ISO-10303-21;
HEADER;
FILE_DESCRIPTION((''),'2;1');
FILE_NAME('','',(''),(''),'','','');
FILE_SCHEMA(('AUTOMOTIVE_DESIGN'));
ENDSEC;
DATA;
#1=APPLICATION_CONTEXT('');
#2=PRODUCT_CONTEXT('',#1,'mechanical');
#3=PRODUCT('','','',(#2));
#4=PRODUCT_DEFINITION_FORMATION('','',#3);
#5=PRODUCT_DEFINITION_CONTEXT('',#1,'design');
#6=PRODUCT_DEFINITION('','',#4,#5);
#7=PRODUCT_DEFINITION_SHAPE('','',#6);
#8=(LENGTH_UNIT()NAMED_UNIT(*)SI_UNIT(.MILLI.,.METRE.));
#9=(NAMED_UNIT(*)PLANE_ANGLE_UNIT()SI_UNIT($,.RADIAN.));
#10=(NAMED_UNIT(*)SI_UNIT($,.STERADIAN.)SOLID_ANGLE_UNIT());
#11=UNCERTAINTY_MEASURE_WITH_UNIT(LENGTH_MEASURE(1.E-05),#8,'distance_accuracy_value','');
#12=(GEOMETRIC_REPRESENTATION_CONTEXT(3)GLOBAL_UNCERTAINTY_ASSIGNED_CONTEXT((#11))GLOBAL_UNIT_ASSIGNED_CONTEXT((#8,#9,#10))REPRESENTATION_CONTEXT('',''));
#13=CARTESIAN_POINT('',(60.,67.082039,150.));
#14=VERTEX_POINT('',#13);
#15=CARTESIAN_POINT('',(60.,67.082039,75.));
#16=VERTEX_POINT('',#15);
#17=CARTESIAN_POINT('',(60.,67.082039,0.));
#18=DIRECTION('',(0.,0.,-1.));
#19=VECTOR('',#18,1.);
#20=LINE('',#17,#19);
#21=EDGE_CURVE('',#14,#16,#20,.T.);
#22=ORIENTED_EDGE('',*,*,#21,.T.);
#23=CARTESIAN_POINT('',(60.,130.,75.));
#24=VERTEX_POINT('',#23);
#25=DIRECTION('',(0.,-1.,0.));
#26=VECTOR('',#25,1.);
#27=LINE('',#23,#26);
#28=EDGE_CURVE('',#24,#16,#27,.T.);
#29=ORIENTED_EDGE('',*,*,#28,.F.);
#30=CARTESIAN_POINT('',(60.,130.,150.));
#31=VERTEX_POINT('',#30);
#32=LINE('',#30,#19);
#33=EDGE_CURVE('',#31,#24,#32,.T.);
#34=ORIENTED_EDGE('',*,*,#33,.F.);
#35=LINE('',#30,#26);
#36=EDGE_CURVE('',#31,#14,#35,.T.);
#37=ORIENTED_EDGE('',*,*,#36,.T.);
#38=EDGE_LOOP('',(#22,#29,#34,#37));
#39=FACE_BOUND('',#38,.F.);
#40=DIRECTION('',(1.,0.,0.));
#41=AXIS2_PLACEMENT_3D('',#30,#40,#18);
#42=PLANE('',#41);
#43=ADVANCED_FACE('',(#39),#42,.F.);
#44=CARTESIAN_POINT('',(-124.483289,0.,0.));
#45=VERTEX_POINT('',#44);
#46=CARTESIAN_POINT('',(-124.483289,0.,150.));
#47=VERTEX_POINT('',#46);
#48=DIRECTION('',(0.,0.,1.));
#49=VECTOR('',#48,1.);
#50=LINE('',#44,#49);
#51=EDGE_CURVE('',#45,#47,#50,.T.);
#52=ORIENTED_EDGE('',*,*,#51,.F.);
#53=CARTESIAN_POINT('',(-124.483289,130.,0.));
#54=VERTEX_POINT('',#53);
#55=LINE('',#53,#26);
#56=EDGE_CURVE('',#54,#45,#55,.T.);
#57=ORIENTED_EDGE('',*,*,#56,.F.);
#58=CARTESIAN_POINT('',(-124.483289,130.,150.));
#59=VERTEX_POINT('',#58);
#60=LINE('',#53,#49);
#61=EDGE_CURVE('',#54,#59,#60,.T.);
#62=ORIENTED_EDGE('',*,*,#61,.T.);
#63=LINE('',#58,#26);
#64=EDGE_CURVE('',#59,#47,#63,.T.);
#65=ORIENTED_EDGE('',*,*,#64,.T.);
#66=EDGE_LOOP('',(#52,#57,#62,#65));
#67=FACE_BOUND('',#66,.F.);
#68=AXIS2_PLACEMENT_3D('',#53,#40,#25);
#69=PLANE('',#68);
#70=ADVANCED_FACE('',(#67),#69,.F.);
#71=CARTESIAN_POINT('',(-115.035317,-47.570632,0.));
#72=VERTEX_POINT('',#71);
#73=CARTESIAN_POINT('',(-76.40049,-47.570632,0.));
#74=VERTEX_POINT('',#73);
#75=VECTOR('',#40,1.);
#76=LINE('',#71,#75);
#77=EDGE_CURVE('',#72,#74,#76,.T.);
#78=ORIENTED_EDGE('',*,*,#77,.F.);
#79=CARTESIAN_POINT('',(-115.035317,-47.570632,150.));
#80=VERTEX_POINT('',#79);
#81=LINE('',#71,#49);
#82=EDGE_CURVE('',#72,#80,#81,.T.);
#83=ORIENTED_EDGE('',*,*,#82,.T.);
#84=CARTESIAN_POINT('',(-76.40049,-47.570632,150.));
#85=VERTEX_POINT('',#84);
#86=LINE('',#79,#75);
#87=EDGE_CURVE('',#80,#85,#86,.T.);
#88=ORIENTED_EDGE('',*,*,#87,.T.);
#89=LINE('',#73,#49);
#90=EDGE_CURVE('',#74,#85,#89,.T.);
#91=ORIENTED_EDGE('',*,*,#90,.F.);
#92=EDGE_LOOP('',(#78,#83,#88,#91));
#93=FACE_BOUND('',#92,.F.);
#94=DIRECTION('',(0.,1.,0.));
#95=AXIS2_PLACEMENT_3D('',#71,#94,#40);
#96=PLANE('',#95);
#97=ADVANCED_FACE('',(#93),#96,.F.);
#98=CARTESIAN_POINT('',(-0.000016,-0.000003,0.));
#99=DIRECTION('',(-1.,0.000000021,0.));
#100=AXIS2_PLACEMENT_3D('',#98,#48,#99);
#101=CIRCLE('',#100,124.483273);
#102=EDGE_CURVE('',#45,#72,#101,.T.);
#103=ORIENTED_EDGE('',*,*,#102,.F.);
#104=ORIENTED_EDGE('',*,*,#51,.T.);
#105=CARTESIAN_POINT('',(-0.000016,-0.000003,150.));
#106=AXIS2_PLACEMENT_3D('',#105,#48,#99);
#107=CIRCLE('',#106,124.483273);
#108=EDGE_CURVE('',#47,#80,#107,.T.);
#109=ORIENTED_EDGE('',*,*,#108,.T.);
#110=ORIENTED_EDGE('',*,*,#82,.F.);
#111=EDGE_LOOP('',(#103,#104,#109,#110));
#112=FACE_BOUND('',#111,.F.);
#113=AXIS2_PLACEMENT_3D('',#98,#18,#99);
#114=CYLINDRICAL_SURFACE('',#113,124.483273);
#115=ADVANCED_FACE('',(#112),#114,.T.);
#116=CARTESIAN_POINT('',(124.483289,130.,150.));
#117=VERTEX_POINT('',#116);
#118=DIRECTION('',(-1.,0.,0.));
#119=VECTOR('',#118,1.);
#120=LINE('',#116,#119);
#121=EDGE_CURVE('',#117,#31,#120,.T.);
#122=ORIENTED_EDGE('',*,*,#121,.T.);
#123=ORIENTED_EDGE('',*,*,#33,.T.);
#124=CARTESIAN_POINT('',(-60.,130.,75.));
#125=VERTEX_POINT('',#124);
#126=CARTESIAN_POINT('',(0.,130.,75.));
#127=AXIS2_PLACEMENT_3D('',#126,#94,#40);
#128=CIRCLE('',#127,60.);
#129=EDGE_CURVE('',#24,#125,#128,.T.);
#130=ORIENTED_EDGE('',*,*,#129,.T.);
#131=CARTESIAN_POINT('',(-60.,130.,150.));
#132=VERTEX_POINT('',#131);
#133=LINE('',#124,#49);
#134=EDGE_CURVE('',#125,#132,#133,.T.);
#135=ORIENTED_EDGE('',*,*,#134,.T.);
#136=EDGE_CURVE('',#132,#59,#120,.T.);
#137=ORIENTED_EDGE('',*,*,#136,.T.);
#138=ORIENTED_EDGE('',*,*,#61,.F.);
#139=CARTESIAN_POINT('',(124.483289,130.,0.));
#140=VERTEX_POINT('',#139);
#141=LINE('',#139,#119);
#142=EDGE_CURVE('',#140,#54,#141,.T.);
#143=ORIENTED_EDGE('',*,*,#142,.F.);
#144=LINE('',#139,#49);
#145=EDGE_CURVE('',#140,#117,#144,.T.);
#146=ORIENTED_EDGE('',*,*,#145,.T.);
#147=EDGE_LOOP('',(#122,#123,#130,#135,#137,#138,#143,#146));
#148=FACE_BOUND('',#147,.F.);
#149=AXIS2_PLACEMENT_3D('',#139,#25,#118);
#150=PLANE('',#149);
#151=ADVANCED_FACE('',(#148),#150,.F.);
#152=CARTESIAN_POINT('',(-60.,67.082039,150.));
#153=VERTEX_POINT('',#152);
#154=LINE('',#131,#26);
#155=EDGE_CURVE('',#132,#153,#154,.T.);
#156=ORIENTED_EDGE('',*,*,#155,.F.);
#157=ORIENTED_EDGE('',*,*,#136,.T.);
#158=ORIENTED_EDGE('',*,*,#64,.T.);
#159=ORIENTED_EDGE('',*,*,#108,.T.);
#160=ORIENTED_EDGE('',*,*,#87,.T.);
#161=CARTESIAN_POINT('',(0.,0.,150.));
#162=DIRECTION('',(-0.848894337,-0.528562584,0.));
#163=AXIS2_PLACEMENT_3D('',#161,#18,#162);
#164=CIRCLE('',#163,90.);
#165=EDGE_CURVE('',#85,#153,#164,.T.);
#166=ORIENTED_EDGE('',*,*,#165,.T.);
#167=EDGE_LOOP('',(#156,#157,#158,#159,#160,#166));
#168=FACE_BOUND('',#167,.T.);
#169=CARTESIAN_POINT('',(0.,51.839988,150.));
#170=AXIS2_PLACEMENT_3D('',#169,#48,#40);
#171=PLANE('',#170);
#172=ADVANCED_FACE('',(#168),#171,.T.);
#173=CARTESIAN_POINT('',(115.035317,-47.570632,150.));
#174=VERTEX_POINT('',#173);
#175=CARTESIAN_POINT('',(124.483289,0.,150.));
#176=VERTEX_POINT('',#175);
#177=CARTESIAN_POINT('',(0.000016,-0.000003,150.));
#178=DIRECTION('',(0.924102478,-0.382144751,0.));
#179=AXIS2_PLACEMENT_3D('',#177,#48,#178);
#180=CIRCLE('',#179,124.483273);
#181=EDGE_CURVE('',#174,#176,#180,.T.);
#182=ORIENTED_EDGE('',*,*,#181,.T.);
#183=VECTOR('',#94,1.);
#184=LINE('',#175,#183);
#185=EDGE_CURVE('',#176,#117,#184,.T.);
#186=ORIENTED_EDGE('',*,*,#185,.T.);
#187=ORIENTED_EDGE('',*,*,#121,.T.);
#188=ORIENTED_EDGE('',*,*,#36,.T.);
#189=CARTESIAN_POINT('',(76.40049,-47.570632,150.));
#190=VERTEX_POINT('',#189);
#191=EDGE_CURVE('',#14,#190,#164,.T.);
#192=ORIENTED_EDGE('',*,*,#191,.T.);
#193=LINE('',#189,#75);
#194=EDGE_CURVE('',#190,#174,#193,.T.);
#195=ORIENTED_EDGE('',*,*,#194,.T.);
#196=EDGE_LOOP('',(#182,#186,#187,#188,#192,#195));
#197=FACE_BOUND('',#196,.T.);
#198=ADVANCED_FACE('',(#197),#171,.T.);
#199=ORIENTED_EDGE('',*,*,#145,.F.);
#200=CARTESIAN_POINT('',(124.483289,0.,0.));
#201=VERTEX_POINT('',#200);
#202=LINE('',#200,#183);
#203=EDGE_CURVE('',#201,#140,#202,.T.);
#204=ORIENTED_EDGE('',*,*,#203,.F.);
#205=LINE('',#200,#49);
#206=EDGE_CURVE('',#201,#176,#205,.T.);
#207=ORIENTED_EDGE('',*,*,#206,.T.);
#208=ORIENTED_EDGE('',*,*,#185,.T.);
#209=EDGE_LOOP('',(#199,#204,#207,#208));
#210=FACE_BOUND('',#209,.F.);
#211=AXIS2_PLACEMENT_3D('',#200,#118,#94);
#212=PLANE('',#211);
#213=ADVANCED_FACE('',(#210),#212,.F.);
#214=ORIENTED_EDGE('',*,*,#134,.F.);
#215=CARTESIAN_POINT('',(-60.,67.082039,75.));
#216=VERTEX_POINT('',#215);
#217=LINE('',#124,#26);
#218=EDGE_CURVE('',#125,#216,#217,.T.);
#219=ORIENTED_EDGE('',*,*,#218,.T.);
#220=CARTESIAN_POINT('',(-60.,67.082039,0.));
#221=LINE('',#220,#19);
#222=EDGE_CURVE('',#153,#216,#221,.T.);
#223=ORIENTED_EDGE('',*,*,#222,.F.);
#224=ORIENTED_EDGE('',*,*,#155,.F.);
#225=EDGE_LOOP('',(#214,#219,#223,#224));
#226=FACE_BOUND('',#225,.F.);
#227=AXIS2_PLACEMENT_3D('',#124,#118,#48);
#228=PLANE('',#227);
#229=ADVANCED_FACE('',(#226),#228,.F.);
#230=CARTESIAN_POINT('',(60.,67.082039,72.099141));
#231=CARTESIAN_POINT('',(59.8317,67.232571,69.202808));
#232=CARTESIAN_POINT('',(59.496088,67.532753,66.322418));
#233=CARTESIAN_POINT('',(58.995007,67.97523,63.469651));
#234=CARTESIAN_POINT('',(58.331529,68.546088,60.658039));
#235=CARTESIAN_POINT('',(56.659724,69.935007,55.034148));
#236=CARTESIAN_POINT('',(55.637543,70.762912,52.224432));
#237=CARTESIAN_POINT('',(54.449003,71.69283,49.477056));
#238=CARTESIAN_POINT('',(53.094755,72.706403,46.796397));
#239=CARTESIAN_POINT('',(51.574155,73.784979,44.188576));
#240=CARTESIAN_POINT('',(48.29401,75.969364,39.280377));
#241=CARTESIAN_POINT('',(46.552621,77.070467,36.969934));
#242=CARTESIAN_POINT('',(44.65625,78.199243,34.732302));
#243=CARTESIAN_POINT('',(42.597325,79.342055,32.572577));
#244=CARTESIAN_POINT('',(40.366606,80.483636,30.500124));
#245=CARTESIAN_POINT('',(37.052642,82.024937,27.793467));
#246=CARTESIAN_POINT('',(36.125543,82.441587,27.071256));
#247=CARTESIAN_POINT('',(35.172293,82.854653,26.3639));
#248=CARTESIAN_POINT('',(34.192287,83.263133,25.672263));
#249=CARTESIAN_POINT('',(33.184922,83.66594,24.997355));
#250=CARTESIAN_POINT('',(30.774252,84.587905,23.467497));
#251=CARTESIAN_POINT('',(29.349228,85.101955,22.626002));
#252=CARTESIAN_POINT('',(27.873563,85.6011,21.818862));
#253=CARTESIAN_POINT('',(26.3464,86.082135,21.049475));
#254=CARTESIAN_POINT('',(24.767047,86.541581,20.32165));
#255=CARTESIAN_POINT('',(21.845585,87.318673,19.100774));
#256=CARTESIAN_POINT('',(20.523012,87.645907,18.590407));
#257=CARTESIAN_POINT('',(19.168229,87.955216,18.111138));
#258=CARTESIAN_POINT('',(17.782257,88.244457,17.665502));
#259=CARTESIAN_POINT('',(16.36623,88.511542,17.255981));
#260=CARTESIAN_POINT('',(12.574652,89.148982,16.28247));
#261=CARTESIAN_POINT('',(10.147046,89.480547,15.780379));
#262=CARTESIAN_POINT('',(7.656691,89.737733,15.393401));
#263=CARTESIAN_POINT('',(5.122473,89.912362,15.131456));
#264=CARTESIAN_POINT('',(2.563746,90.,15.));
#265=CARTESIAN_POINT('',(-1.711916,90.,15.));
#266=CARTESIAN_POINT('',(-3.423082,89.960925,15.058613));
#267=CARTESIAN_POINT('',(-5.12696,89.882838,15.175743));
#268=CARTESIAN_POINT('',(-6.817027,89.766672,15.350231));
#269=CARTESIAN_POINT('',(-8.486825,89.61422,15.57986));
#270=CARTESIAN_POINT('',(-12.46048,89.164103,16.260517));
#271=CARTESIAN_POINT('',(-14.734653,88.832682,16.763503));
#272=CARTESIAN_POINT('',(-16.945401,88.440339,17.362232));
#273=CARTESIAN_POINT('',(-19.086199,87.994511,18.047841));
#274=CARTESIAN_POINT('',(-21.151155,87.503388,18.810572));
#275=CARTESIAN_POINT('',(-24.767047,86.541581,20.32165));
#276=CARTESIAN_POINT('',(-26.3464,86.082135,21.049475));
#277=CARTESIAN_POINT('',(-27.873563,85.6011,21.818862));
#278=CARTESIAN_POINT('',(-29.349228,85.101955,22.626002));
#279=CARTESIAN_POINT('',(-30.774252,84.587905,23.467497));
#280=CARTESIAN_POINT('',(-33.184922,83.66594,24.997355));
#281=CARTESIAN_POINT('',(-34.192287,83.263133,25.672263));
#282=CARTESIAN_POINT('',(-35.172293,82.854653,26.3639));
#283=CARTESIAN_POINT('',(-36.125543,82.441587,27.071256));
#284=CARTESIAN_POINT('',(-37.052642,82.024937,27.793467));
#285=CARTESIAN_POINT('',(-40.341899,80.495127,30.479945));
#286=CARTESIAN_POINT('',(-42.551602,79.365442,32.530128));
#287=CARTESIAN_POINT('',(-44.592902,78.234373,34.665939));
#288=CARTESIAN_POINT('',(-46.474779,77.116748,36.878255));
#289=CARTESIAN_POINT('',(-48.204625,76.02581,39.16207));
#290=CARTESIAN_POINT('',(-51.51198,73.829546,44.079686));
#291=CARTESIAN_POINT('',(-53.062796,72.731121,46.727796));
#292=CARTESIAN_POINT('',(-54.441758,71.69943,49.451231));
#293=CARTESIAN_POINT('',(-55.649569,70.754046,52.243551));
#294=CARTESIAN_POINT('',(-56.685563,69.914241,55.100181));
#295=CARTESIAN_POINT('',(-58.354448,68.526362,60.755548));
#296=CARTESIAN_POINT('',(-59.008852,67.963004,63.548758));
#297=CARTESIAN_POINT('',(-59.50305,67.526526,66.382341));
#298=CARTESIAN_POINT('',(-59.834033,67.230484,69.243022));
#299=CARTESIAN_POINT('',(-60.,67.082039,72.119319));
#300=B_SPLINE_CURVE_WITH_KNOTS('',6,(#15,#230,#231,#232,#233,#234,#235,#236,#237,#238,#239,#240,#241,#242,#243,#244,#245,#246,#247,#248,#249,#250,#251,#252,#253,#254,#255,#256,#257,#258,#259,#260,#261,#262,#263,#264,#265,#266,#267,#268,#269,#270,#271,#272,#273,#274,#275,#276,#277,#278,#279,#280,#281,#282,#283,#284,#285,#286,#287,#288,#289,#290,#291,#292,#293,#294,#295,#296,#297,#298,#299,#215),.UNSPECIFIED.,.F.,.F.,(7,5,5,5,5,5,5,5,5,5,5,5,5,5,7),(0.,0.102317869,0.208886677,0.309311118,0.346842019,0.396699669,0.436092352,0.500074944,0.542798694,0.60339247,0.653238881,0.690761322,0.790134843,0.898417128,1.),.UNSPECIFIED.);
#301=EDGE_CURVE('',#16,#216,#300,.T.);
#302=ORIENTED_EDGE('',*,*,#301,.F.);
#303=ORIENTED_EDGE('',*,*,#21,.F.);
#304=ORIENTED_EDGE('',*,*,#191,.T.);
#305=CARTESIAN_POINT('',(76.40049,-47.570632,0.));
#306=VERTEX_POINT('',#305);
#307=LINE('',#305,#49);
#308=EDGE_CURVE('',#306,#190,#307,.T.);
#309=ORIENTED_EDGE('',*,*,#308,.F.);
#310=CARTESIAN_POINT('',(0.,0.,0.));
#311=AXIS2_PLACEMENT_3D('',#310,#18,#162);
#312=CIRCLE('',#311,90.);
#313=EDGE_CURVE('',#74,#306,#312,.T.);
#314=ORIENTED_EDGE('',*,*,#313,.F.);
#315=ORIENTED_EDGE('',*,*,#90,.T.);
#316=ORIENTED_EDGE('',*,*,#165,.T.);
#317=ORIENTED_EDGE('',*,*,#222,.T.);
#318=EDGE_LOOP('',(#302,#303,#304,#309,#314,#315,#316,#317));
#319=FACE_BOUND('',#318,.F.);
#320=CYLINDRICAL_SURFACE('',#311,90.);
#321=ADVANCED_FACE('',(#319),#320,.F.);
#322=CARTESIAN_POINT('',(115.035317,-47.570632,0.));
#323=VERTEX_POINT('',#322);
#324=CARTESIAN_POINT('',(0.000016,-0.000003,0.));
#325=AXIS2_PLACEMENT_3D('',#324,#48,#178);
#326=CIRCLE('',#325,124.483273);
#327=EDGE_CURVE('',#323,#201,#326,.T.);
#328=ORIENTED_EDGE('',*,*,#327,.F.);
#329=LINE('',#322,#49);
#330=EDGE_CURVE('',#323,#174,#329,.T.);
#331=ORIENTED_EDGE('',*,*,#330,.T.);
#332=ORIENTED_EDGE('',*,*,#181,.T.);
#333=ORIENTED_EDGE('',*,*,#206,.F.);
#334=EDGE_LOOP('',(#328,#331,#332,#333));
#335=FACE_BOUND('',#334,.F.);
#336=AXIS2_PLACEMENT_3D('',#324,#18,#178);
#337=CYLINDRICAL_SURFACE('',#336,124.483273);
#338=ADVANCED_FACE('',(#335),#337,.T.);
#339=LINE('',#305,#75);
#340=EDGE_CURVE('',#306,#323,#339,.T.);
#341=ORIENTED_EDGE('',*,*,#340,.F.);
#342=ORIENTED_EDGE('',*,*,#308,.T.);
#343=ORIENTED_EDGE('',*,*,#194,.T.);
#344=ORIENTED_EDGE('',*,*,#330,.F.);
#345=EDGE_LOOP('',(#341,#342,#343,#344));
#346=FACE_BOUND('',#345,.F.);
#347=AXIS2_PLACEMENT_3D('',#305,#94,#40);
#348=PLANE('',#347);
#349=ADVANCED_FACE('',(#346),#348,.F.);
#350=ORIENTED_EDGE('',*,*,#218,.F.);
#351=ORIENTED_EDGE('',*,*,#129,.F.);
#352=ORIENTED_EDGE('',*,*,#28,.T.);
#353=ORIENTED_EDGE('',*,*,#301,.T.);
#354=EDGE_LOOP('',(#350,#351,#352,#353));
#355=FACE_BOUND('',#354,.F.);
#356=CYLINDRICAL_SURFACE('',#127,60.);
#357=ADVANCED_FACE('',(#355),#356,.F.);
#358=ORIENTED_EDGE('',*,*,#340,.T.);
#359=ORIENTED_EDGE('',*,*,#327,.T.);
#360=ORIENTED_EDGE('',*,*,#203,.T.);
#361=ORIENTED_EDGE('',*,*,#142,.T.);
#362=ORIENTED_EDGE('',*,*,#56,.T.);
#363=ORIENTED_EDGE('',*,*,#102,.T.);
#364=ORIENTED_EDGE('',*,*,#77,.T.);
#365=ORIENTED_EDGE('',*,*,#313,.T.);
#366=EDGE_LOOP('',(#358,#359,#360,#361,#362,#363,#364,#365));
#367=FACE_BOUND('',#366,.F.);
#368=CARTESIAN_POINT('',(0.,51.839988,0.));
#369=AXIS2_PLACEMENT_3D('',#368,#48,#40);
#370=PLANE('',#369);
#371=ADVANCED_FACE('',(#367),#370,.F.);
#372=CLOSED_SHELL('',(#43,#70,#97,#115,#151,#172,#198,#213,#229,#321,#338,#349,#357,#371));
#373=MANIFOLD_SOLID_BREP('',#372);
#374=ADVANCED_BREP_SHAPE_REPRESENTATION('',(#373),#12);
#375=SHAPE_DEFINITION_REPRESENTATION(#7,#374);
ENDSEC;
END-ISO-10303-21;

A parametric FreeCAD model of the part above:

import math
import FreeCAD as App
import Part
import Sketcher

doc = App.newDocument("Part")
body = doc.addObject("PartDesign::Body", "Body")

# Sketch on XY plane
sketch1 = body.newObject("Sketcher::SketchObject", "Sketch")
sketch1.AttachmentSupport = (doc.getObject("XY_Plane"), [""])
sketch1.MapMode = "FlatFace"
sketch1.addGeometry(Part.ArcOfCircle(Part.Circle(App.Vector(0, 0, 0), App.Vector(0, 0, 1), 90), math.radians(-32), math.radians(212)), False)
sketch1.addGeometry(Part.LineSegment(App.Vector(76, -48, 0), App.Vector(115, -48, 0)), False)
sketch1.addGeometry(Part.ArcOfCircle(Part.Circle(App.Vector(0, 0, 0), App.Vector(0, 0, 1), 124), math.radians(-22), math.radians(0)), False)
sketch1.addGeometry(Part.LineSegment(App.Vector(124, 0, 0), App.Vector(124, 130, 0)), False)
sketch1.addGeometry(Part.LineSegment(App.Vector(124, 130, 0), App.Vector(-124, 130, 0)), False)
sketch1.addGeometry(Part.LineSegment(App.Vector(-124, 130, 0), App.Vector(-124, 0, 0)), False)
sketch1.addGeometry(Part.ArcOfCircle(Part.Circle(App.Vector(0, 0, 0), App.Vector(0, 0, 1), 124), math.radians(180), math.radians(202)), False)
sketch1.addGeometry(Part.LineSegment(App.Vector(-115, -48, 0), App.Vector(-76, -48, 0)), False)
sketch1.addConstraint(Sketcher.Constraint("Coincident", 0, 1, 1, 1))
sketch1.addConstraint(Sketcher.Constraint("Coincident", 1, 2, 2, 1))
sketch1.addConstraint(Sketcher.Constraint("Tangent", 2, 2, 3, 1))
sketch1.addConstraint(Sketcher.Constraint("Coincident", 3, 2, 4, 1))
sketch1.addConstraint(Sketcher.Constraint("Coincident", 4, 2, 5, 1))
sketch1.addConstraint(Sketcher.Constraint("Tangent", 5, 2, 6, 1))
sketch1.addConstraint(Sketcher.Constraint("Coincident", 6, 2, 7, 1))
sketch1.addConstraint(Sketcher.Constraint("Coincident", 7, 2, 0, 2))
sketch1.addConstraint(Sketcher.Constraint("Horizontal", 1))
sketch1.addConstraint(Sketcher.Constraint("Vertical", 3))
sketch1.addConstraint(Sketcher.Constraint("Horizontal", 4))
sketch1.addConstraint(Sketcher.Constraint("Vertical", 5))
sketch1.addConstraint(Sketcher.Constraint("Horizontal", 7))
sketch1.addConstraint(Sketcher.Constraint("Coincident", 0, 3, -1, 1))
sketch1.addConstraint(Sketcher.Constraint("Equal", 2, 6))
sketch1.addConstraint(Sketcher.Constraint("Symmetric", 2, 3, 6, 3, -1, 1))
sketch1.addConstraint(Sketcher.Constraint("Symmetric", 1, 2, 6, 2, -2))
sketch1.addConstraint(Sketcher.Constraint("Radius", 0, 90.0))
sketch1.addConstraint(Sketcher.Constraint("DistanceY", 3, 1, 3, 2, 130.0))
sketch1.addConstraint(Sketcher.Constraint("Radius", 2, 124.483273))
sketch1.addConstraint(Sketcher.Constraint("DistanceX", 4, 2, 4, 1, 248.966578))
sketch1.addConstraint(Sketcher.Constraint("DistanceX", 2, 3, 1, 2, 115.035301))
pad1 = body.newObject("PartDesign::Pad", "Pad")
pad1.Profile = sketch1
pad1.Length = 150

# Sketch on XZ plane
sketch2 = body.newObject("Sketcher::SketchObject", "Sketch001")
sketch2.AttachmentSupport = (doc.getObject("XZ_Plane"), [""])
sketch2.MapMode = "FlatFace"
sketch2.AttachmentOffset = App.Placement(App.Vector(0, 0, -130), App.Rotation())
sketch2.addGeometry(Part.LineSegment(App.Vector(60, 150, 0), App.Vector(60, 75, 0)), False)
sketch2.addGeometry(Part.ArcOfCircle(Part.Circle(App.Vector(0, 75, 0), App.Vector(0, 0, 1), 60), math.radians(180), math.radians(360)), False)
sketch2.addGeometry(Part.LineSegment(App.Vector(-60, 75, 0), App.Vector(-60, 150, 0)), False)
sketch2.addGeometry(Part.LineSegment(App.Vector(-60, 150, 0), App.Vector(60, 150, 0)), False)
sketch2.addConstraint(Sketcher.Constraint("Tangent", 0, 2, 1, 2))
sketch2.addConstraint(Sketcher.Constraint("Tangent", 1, 1, 2, 1))
sketch2.addConstraint(Sketcher.Constraint("Coincident", 2, 2, 3, 1))
sketch2.addConstraint(Sketcher.Constraint("Coincident", 3, 2, 0, 1))
sketch2.addConstraint(Sketcher.Constraint("Vertical", 0))
sketch2.addConstraint(Sketcher.Constraint("Vertical", 2))
sketch2.addConstraint(Sketcher.Constraint("Horizontal", 3))
sketch2.addConstraint(Sketcher.Constraint("PointOnObject", 1, 3, -2))
sketch2.addConstraint(Sketcher.Constraint("Radius", 1, 60.0))
sketch2.addConstraint(Sketcher.Constraint("DistanceY", 0, 2, 0, 1, 75.0))
sketch2.addConstraint(Sketcher.Constraint("DistanceY", -1, 1, 1, 3, 75.0))
pocket1 = body.newObject("PartDesign::Pocket", "Pocket")
pocket1.Profile = sketch2
pocket1.Length = 152.654
pocket1.Reversed = True

doc.recompute()
